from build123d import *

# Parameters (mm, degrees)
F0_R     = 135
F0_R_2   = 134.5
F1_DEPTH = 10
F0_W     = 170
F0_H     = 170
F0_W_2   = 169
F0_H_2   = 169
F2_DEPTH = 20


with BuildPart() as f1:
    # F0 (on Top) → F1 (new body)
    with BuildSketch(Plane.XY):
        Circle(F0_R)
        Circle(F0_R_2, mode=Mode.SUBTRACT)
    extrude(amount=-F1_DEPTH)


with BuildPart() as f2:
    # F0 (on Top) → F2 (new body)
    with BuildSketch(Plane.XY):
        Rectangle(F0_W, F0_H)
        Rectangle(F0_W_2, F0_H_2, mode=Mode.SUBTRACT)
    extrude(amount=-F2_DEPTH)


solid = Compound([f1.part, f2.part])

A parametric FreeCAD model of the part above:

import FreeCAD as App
import Part
import Sketcher

V = App.Vector
Q = App.Units.Quantity

doc = App.newDocument("Part")
body = doc.addObject("PartDesign::Body", "Body")

sketch1 = body.newObject("Sketcher::SketchObject", "Sketch")
sketch1.AttachmentSupport = (doc.getObject("XY_Plane"), [""])
sketch1.MapMode = "FlatFace"
sketch1.addGeometry(Part.Circle(V(0, 0, 0), V(0, 0, 1), 135), False)
sketch1.addGeometry(Part.Circle(V(0, 0, 0), V(0, 0, 1), 134.5), False)
sketch1.addConstraint(Sketcher.Constraint("Coincident", 0, 3, -1, 1))
sketch1.addConstraint(Sketcher.Constraint("Coincident", 1, 3, -1, 1))
sketch1.addConstraint(Sketcher.Constraint("Diameter", 0, Q("270 mm")))
sketch1.addConstraint(Sketcher.Constraint("Diameter", 1, Q("269 mm")))
pad1 = body.newObject("PartDesign::Pad", "Pad")
pad1.Profile = sketch1
pad1.Length = 10
pad1.Reversed = True
body2 = doc.addObject("PartDesign::Body", "Body001")

sketch2 = body2.newObject("Sketcher::SketchObject", "Sketch001")
sketch2.AttachmentSupport = (doc.getObject("XY_Plane001"), [""])
sketch2.MapMode = "FlatFace"
sketch2.addGeometry(Part.LineSegment(V(-85, 85, 0), V(-85, -85, 0)), False)
sketch2.addGeometry(Part.LineSegment(V(-85, -85, 0), V(85, -85, 0)), False)
sketch2.addGeometry(Part.LineSegment(V(85, -85, 0), V(85, 85, 0)), False)
sketch2.addGeometry(Part.LineSegment(V(85, 85, 0), V(-85, 85, 0)), False)
sketch2.addGeometry(Part.LineSegment(V(84.5, -84.5, 0), V(-84.5, -84.5, 0)), False)
sketch2.addGeometry(Part.LineSegment(V(-84.5, -84.5, 0), V(-84.5, 84.5, 0)), False)
sketch2.addGeometry(Part.LineSegment(V(-84.5, 84.5, 0), V(84.5, 84.5, 0)), False)
sketch2.addGeometry(Part.LineSegment(V(84.5, 84.5, 0), V(84.5, -84.5, 0)), False)
sketch2.addConstraint(Sketcher.Constraint("Coincident", 0, 2, 1, 1))
sketch2.addConstraint(Sketcher.Constraint("Coincident", 1, 2, 2, 1))
sketch2.addConstraint(Sketcher.Constraint("Coincident", 2, 2, 3, 1))
sketch2.addConstraint(Sketcher.Constraint("Coincident", 3, 2, 0, 1))
sketch2.addConstraint(Sketcher.Constraint("Coincident", 4, 2, 5, 1))
sketch2.addConstraint(Sketcher.Constraint("Coincident", 5, 2, 6, 1))
sketch2.addConstraint(Sketcher.Constraint("Coincident", 6, 2, 7, 1))
sketch2.addConstraint(Sketcher.Constraint("Coincident", 7, 2, 4, 1))
sketch2.addConstraint(Sketcher.Constraint("Vertical", 0))
sketch2.addConstraint(Sketcher.Constraint("Horizontal", 1))
sketch2.addConstraint(Sketcher.Constraint("Vertical", 2))
sketch2.addConstraint(Sketcher.Constraint("Horizontal", 3))
sketch2.addConstraint(Sketcher.Constraint("Horizontal", 4))
sketch2.addConstraint(Sketcher.Constraint("Vertical", 5))
sketch2.addConstraint(Sketcher.Constraint("Horizontal", 6))
sketch2.addConstraint(Sketcher.Constraint("Vertical", 7))
sketch2.addConstraint(Sketcher.Constraint("Symmetric", 0, 2, 2, 2, -1, 1))
sketch2.addConstraint(Sketcher.Constraint("Symmetric", 4, 2, 6, 2, -1, 1))
sketch2.addConstraint(Sketcher.Constraint("Equal", 3, 0))
sketch2.addConstraint(Sketcher.Constraint("Equal", 6, 5))
sketch2.addConstraint(Sketcher.Constraint("DistanceX", 1, 1, 1, 2, Q("170 mm")))
sketch2.addConstraint(Sketcher.Constraint("DistanceX", 4, 2, 4, 1, Q("169 mm")))
pad2 = body2.newObject("PartDesign::Pad", "Pad001")
pad2.Profile = sketch2
pad2.Length = 20
pad2.Reversed = True

doc.recompute()
